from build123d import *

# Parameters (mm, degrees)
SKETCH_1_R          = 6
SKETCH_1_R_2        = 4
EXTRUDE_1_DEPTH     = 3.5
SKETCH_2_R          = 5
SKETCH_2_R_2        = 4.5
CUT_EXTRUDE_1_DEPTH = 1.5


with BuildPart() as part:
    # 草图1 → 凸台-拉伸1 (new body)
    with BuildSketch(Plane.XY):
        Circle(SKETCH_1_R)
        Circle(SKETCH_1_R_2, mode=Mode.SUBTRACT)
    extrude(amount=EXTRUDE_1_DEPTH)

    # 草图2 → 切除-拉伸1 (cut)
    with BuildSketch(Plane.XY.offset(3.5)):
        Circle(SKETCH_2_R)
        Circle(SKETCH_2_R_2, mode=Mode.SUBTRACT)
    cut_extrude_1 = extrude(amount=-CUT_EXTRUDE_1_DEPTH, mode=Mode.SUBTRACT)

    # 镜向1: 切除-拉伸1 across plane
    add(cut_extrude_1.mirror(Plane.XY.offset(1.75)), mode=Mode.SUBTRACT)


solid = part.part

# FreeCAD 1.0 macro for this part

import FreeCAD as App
import Part
import Sketcher
from FreeCAD import Vector

doc = App.newDocument("Part")
params = doc.addObject("Spreadsheet::Sheet", "Params")
for row, (alias, value) in enumerate([
    ("sketch1_diameter", "12 mm"),
    ("sketch1_diameter2", "8 mm"),
    ("pad1_length", "3.5 mm"),
    ("sketch2_diameter", "10 mm"),
    ("sketch2_diameter2", "9 mm"),
    ("pocket1_length", "1.5 mm"),
], start=1):
    params.set(f"A{row}", alias)
    params.set(f"B{row}", "=" + value)
    params.setAlias(f"B{row}", alias)

body = doc.addObject("PartDesign::Body", "Body")

sketch1 = doc.addObject("Sketcher::SketchObject", "Sketch")
body.addObject(sketch1)
sketch1.AttachmentSupport = (doc.XY_Plane, [""])
sketch1.MapMode = "FlatFace"
sketch1.addGeometry(Part.Circle(Vector(0, 0, 0), Vector(0, 0, 1), 6), False)
sketch1.addGeometry(Part.Circle(Vector(0, 0, 0), Vector(0, 0, 1), 4), False)
sketch1.addConstraint(Sketcher.Constraint("Coincident", 0, 3, -1, 1))
sketch1.addConstraint(Sketcher.Constraint("Coincident", 1, 3, -1, 1))
sketch1.addConstraint(Sketcher.Constraint("Diameter", 0, 12.0))
sketch1.addConstraint(Sketcher.Constraint("Diameter", 1, 8.0))
sketch1.setExpression("Constraints[2]", "Params.sketch1_diameter")
sketch1.setExpression("Constraints[3]", "Params.sketch1_diameter2")
pad1 = doc.addObject("PartDesign::Pad", "Pad")
body.addObject(pad1)
pad1.Profile = sketch1
pad1.setExpression("Length", "Params.pad1_length")

sketch2 = doc.addObject("Sketcher::SketchObject", "Sketch001")
body.addObject(sketch2)
sketch2.AttachmentSupport = (doc.XY_Plane, [""])
sketch2.MapMode = "FlatFace"
sketch2.AttachmentOffset = App.Placement(Vector(0, 0, 3.5), App.Rotation())
sketch2.addGeometry(Part.Circle(Vector(0, 0, 0), Vector(0, 0, 1), 5), False)
sketch2.addGeometry(Part.Circle(Vector(0, 0, 0), Vector(0, 0, 1), 4.5), False)
sketch2.addConstraint(Sketcher.Constraint("Coincident", 0, 3, -1, 1))
sketch2.addConstraint(Sketcher.Constraint("Coincident", 1, 3, -1, 1))
sketch2.addConstraint(Sketcher.Constraint("Diameter", 0, 10.0))
sketch2.addConstraint(Sketcher.Constraint("Diameter", 1, 9.0))
sketch2.setExpression("Constraints[2]", "Params.sketch2_diameter")
sketch2.setExpression("Constraints[3]", "Params.sketch2_diameter2")
pocket1 = doc.addObject("PartDesign::Pocket", "Pocket")
body.addObject(pocket1)
pocket1.Profile = sketch2
pocket1.setExpression("Length", "Params.pocket1_length")
doc.recompute()

datumplane = doc.addObject("PartDesign::Plane", "DatumPlane")
body.addObject(datumplane)
datumplane.AttachmentSupport = (doc.XY_Plane, [""])
datumplane.MapMode = "FlatFace"
datumplane.AttachmentOffset = App.Placement(Vector(0, 0, 1.75), App.Rotation())
mirrored = doc.addObject("PartDesign::Mirrored", "Mirrored")
body.addObject(mirrored)
mirrored.Originals = [pocket1]
mirrored.MirrorPlane = (datumplane, [""])
body.Tip = mirrored

doc.recompute()
